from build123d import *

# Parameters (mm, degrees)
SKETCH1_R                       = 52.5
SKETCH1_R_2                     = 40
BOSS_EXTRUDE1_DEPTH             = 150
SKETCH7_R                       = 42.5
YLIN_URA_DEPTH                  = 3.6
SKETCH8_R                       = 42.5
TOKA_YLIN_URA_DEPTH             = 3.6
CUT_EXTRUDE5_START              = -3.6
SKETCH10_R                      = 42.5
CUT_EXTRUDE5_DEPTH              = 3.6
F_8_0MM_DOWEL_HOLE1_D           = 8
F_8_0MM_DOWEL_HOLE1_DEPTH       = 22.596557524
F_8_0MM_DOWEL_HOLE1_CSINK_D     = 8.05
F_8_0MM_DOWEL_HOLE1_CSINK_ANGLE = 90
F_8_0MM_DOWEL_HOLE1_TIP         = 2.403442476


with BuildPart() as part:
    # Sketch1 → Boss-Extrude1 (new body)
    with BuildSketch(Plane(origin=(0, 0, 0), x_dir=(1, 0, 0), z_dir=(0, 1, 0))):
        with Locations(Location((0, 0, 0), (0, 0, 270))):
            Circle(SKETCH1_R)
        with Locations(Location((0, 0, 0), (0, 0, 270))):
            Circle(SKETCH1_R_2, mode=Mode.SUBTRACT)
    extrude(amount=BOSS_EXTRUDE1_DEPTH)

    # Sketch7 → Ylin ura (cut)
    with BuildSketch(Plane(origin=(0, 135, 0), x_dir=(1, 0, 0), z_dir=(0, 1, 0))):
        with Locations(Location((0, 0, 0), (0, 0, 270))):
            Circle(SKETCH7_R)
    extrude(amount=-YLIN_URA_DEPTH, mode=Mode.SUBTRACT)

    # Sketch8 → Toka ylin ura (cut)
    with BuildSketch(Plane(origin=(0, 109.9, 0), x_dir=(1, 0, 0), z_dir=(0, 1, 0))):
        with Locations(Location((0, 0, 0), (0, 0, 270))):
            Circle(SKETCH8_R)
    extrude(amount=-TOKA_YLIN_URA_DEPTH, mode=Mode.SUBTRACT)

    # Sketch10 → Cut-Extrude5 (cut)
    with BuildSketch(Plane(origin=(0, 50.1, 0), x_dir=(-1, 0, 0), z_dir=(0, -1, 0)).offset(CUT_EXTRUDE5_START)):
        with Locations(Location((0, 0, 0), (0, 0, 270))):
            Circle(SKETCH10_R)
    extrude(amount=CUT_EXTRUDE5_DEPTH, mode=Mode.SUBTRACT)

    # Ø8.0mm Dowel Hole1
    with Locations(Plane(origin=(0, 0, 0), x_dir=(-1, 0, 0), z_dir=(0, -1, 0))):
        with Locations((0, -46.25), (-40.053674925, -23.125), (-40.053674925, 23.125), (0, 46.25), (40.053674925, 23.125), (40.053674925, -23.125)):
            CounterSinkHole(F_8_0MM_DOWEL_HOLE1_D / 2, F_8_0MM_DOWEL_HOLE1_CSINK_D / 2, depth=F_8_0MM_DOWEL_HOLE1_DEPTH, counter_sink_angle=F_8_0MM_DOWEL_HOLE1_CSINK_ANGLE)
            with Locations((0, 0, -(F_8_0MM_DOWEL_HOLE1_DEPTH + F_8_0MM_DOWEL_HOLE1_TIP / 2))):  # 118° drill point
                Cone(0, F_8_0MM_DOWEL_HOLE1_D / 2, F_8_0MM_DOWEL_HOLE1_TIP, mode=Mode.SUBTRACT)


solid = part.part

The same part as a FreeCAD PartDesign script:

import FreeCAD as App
import Part
import Sketcher
Q = App.Units.Quantity

doc = App.newDocument("Part")
body = doc.addObject("PartDesign::Body", "Body")

# Sketch on XZ plane
sketch1 = body.newObject("Sketcher::SketchObject", "Sketch")
sketch1.AttachmentSupport = (doc.getObject("XZ_Plane"), [""])
sketch1.MapMode = "FlatFace"
sketch1.addGeometry(Part.Circle(App.Vector(0, 0, 0), App.Vector(0, 0, 1), 52), False)
sketch1.addGeometry(Part.Circle(App.Vector(0, 0, 0), App.Vector(0, 0, 1), 40), False)
sketch1.addConstraint(Sketcher.Constraint("Coincident", 0, 3, -1, 1))
sketch1.addConstraint(Sketcher.Constraint("Coincident", 1, 3, -1, 1))
sketch1.addConstraint(Sketcher.Constraint("Diameter", 0, Q("105 mm")))
sketch1.addConstraint(Sketcher.Constraint("Diameter", 1, Q("80 mm")))
pad1 = body.newObject("PartDesign::Pad", "Pad")
pad1.Profile = sketch1
pad1.Length = 150
pad1.Reversed = True

# Sketch on XZ plane
sketch2 = body.newObject("Sketcher::SketchObject", "Sketch001")
sketch2.AttachmentSupport = (doc.getObject("XZ_Plane"), [""])
sketch2.MapMode = "FlatFace"
sketch2.AttachmentOffset = App.Placement(App.Vector(0, 0, -135), App.Rotation())
sketch2.addGeometry(Part.Circle(App.Vector(0, 0, 0), App.Vector(0, 0, 1), 42), False)
sketch2.addConstraint(Sketcher.Constraint("Coincident", 0, 3, -1, 1))
sketch2.addConstraint(Sketcher.Constraint("Diameter", 0, Q("85 mm")))
pocket1 = body.newObject("PartDesign::Pocket", "Pocket")
pocket1.Profile = sketch2
pocket1.Length = 3.6
pocket1.Reversed = True

# Sketch on XZ plane
sketch3 = body.newObject("Sketcher::SketchObject", "Sketch002")
sketch3.AttachmentSupport = (doc.getObject("XZ_Plane"), [""])
sketch3.MapMode = "FlatFace"
sketch3.AttachmentOffset = App.Placement(App.Vector(0, 0, -109.9), App.Rotation())
sketch3.addGeometry(Part.Circle(App.Vector(0, 0, 0), App.Vector(0, 0, 1), 42), False)
sketch3.addConstraint(Sketcher.Constraint("Coincident", 0, 3, -1, 1))
sketch3.addConstraint(Sketcher.Constraint("Diameter", 0, Q("85 mm")))
pocket2 = body.newObject("PartDesign::Pocket", "Pocket001")
pocket2.Profile = sketch3
pocket2.Length = 3.6
pocket2.Reversed = True

# Sketch on XZ plane
sketch4 = body.newObject("Sketcher::SketchObject", "Sketch003")
sketch4.AttachmentSupport = (doc.getObject("XZ_Plane"), [""])
sketch4.MapMode = "FlatFace"
sketch4.AttachmentOffset = App.Placement(App.Vector(0, 0, -53.7), App.Rotation())
sketch4.addGeometry(Part.Circle(App.Vector(0, 0, 0), App.Vector(0, 0, 1), 42), False)
sketch4.addConstraint(Sketcher.Constraint("Coincident", 0, 3, -1, 1))
sketch4.addConstraint(Sketcher.Constraint("Diameter", 0, Q("85 mm")))
pocket3 = body.newObject("PartDesign::Pocket", "Pocket002")
pocket3.Profile = sketch4
pocket3.Length = 3.6
pocket3.Reversed = True

# Sketch on XZ plane
sketch5 = body.newObject("Sketcher::SketchObject", "Sketch004")
sketch5.AttachmentSupport = (doc.getObject("XZ_Plane"), [""])
sketch5.MapMode = "FlatFace"
sketch5.addGeometry(Part.Circle(App.Vector(0, 46.2, 0), App.Vector(0, 0, 1), 4), False)
sketch5.addGeometry(Part.Circle(App.Vector(40.1, 23.1, 0), App.Vector(0, 0, 1), 4), False)
sketch5.addGeometry(Part.Circle(App.Vector(40.1, -23.1, 0), App.Vector(0, 0, 1), 4), False)
sketch5.addGeometry(Part.Circle(App.Vector(0, -46.2, 0), App.Vector(0, 0, 1), 4), False)
sketch5.addGeometry(Part.Circle(App.Vector(-40.1, -23.1, 0), App.Vector(0, 0, 1), 4), False)
sketch5.addGeometry(Part.Circle(App.Vector(-40.1, 23.1, 0), App.Vector(0, 0, 1), 4), False)
sketch5.addConstraint(Sketcher.Constraint("Equal", 0, 1))
sketch5.addConstraint(Sketcher.Constraint("Equal", 1, 2))
sketch5.addConstraint(Sketcher.Constraint("Equal", 2, 3))
sketch5.addConstraint(Sketcher.Constraint("Equal", 3, 4))
sketch5.addConstraint(Sketcher.Constraint("Equal", 4, 5))
sketch5.addConstraint(Sketcher.Constraint("Symmetric", 0, 3, 3, 3, -1, 1))
sketch5.addConstraint(Sketcher.Constraint("Symmetric", 1, 3, 4, 3, -1, 1))
sketch5.addConstraint(Sketcher.Constraint("Symmetric", 2, 3, 5, 3, -1, 1))
sketch5.addConstraint(Sketcher.Constraint("Symmetric", 2, 3, 4, 3, -2))
sketch5.addConstraint(Sketcher.Constraint("PointOnObject", 0, 3, -2))
sketch5.addConstraint(Sketcher.Constraint("Diameter", 0, Q("8 mm")))
sketch5.addConstraint(Sketcher.Constraint("DistanceY", 3, 3, 0, 3, Q("92.5 mm")))
sketch5.addConstraint(Sketcher.Constraint("DistanceY", 2, 3, 1, 3, Q("46.25 mm")))
sketch5.addConstraint(Sketcher.Constraint("DistanceX", 4, 3, 2, 3, Q("80.10735 mm")))
doc.recompute()
hole = body.newObject("PartDesign::Hole", "Hole")
hole.Profile = sketch5
hole.ThreadType = "None"
hole.Diameter = 8
hole.DepthType = "Dimension"
hole.Depth = 22.596558
hole.DrillPoint = "Angled"
hole.DrillPointAngle = 118
hole.HoleCutType = "Countersink"
hole.HoleCutDiameter = 8.05
hole.HoleCutCountersinkAngle = 90

doc.recompute()
